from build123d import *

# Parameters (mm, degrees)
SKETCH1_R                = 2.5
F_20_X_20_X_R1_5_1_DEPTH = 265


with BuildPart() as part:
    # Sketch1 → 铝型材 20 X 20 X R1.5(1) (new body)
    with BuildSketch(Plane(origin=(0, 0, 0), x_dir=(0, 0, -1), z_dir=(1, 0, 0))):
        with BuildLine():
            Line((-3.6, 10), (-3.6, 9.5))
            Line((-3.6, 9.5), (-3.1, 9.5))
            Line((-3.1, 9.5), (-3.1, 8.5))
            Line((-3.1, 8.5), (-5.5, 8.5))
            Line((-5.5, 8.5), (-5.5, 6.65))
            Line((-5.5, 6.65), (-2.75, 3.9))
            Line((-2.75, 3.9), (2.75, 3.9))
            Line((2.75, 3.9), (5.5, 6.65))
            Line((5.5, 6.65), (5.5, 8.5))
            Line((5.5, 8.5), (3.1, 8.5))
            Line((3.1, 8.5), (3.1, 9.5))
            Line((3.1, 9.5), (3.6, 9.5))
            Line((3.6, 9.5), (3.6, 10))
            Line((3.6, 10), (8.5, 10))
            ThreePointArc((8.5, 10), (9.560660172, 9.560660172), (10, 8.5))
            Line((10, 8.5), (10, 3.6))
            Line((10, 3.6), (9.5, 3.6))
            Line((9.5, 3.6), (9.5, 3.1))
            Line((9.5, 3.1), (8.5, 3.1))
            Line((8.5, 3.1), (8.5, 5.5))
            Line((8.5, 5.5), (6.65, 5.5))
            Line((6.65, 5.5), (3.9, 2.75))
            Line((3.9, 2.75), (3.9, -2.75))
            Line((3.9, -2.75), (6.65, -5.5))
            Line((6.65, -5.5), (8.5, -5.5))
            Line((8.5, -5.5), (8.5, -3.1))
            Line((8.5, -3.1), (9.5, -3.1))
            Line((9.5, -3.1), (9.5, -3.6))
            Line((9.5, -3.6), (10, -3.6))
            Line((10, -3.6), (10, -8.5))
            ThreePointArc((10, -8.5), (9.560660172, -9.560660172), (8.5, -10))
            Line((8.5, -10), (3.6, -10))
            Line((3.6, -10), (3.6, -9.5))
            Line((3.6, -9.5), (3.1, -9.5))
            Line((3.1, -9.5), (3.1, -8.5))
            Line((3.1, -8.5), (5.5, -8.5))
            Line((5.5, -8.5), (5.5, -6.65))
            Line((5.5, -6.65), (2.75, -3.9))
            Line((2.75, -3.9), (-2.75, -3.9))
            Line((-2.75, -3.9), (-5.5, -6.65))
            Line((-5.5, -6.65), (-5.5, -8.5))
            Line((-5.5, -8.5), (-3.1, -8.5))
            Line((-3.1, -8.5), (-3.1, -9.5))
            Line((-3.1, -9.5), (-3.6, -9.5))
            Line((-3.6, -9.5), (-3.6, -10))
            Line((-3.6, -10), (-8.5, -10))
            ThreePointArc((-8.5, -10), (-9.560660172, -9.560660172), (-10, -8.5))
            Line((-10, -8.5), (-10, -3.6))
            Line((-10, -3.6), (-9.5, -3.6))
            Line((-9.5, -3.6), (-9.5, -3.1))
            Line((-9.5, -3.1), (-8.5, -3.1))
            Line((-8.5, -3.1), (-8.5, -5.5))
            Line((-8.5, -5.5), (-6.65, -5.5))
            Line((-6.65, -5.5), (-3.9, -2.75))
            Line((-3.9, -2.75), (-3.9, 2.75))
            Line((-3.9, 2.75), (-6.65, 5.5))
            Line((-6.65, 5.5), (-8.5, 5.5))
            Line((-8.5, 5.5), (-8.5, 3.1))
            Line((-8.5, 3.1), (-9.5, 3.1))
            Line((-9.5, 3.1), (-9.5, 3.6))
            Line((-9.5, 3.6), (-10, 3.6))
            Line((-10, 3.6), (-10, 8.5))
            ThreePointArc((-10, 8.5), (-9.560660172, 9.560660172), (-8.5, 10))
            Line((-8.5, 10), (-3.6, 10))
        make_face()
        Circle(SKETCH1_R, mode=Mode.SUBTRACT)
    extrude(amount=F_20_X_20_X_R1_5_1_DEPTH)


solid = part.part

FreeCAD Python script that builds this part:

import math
import FreeCAD as App
import Part
import Sketcher
from FreeCAD import Vector

doc = App.newDocument("Part")
params = doc.addObject("Spreadsheet::Sheet", "Params")
for row, (alias, value) in enumerate([
    ("sketch1_diameter", "5 mm"),
    ("sketch1_radius", "1.5 mm"),
    ("sketch1_width", "1 mm"),
    ("sketch1_width2", "4.9 mm"),
    ("sketch1_width3", "2.4 mm"),
    ("pad1_length", "265 mm"),
], start=1):
    params.set(f"A{row}", alias)
    params.set(f"B{row}", "=" + value)
    params.setAlias(f"B{row}", alias)

body = doc.addObject("PartDesign::Body", "Body")

sketch1 = body.newObject("Sketcher::SketchObject", "Sketch")
sketch1.AttachmentSupport = (doc.getObject("YZ_Plane"), [""])
sketch1.MapMode = "FlatFace"
sketch1.addGeometry([
    Part.LineSegment(Vector(9.5, 3.6, 0), Vector(10, 3.6, 0)),
    Part.LineSegment(Vector(10, 3.6, 0), Vector(10, 8.5, 0)),
    Part.ArcOfCircle(Part.Circle(Vector(8.5, 8.5, 0), Vector(0, 0, 1), 1.5), math.radians(0), math.radians(90)),
    Part.LineSegment(Vector(8.5, 10, 0), Vector(3.6, 10, 0)),
    Part.LineSegment(Vector(3.6, 10, 0), Vector(3.6, 9.5, 0)),
    Part.LineSegment(Vector(3.6, 9.5, 0), Vector(3.1, 9.5, 0)),
    Part.LineSegment(Vector(3.1, 9.5, 0), Vector(3.1, 8.5, 0)),
    Part.LineSegment(Vector(3.1, 8.5, 0), Vector(5.5, 8.5, 0)),
    Part.LineSegment(Vector(5.5, 8.5, 0), Vector(5.5, 6.7, 0)),
    Part.LineSegment(Vector(5.5, 6.7, 0), Vector(2.8, 3.9, 0)),
    Part.LineSegment(Vector(2.8, 3.9, 0), Vector(-2.8, 3.9, 0)),
    Part.LineSegment(Vector(-2.8, 3.9, 0), Vector(-5.5, 6.7, 0)),
    Part.LineSegment(Vector(-5.5, 6.7, 0), Vector(-5.5, 8.5, 0)),
    Part.LineSegment(Vector(-5.5, 8.5, 0), Vector(-3.1, 8.5, 0)),
    Part.LineSegment(Vector(-3.1, 8.5, 0), Vector(-3.1, 9.5, 0)),
    Part.LineSegment(Vector(-3.1, 9.5, 0), Vector(-3.6, 9.5, 0)),
    Part.LineSegment(Vector(-3.6, 9.5, 0), Vector(-3.6, 10, 0)),
    Part.LineSegment(Vector(-3.6, 10, 0), Vector(-8.5, 10, 0)),
    Part.ArcOfCircle(Part.Circle(Vector(-8.5, 8.5, 0), Vector(0, 0, 1), 1.5), math.radians(90), math.radians(180)),
    Part.LineSegment(Vector(-10, 8.5, 0), Vector(-10, 3.6, 0)),
    Part.LineSegment(Vector(-10, 3.6, 0), Vector(-9.5, 3.6, 0)),
    Part.LineSegment(Vector(-9.5, 3.6, 0), Vector(-9.5, 3.1, 0)),
    Part.LineSegment(Vector(-9.5, 3.1, 0), Vector(-8.5, 3.1, 0)),
    Part.LineSegment(Vector(-8.5, 3.1, 0), Vector(-8.5, 5.5, 0)),
    Part.LineSegment(Vector(-8.5, 5.5, 0), Vector(-6.7, 5.5, 0)),
    Part.LineSegment(Vector(-6.7, 5.5, 0), Vector(-3.9, 2.8, 0)),
    Part.LineSegment(Vector(-3.9, 2.8, 0), Vector(-3.9, -2.8, 0)),
    Part.LineSegment(Vector(-3.9, -2.8, 0), Vector(-6.7, -5.5, 0)),
    Part.LineSegment(Vector(-6.7, -5.5, 0), Vector(-8.5, -5.5, 0)),
    Part.LineSegment(Vector(-8.5, -5.5, 0), Vector(-8.5, -3.1, 0)),
    Part.LineSegment(Vector(-8.5, -3.1, 0), Vector(-9.5, -3.1, 0)),
    Part.LineSegment(Vector(-9.5, -3.1, 0), Vector(-9.5, -3.6, 0)),
    Part.LineSegment(Vector(-9.5, -3.6, 0), Vector(-10, -3.6, 0)),
    Part.LineSegment(Vector(-10, -3.6, 0), Vector(-10, -8.5, 0)),
    Part.ArcOfCircle(Part.Circle(Vector(-8.5, -8.5, 0), Vector(0, 0, 1), 1.5), math.radians(180), math.radians(270)),
    Part.LineSegment(Vector(-8.5, -10, 0), Vector(-3.6, -10, 0)),
    Part.LineSegment(Vector(-3.6, -10, 0), Vector(-3.6, -9.5, 0)),
    Part.LineSegment(Vector(-3.6, -9.5, 0), Vector(-3.1, -9.5, 0)),
    Part.LineSegment(Vector(-3.1, -9.5, 0), Vector(-3.1, -8.5, 0)),
    Part.LineSegment(Vector(-3.1, -8.5, 0), Vector(-5.5, -8.5, 0)),
    Part.LineSegment(Vector(-5.5, -8.5, 0), Vector(-5.5, -6.7, 0)),
    Part.LineSegment(Vector(-5.5, -6.7, 0), Vector(-2.8, -3.9, 0)),
    Part.LineSegment(Vector(-2.8, -3.9, 0), Vector(2.8, -3.9, 0)),
    Part.LineSegment(Vector(2.8, -3.9, 0), Vector(5.5, -6.7, 0)),
    Part.LineSegment(Vector(5.5, -6.7, 0), Vector(5.5, -8.5, 0)),
    Part.LineSegment(Vector(5.5, -8.5, 0), Vector(3.1, -8.5, 0)),
    Part.LineSegment(Vector(3.1, -8.5, 0), Vector(3.1, -9.5, 0)),
    Part.LineSegment(Vector(3.1, -9.5, 0), Vector(3.6, -9.5, 0)),
    Part.LineSegment(Vector(3.6, -9.5, 0), Vector(3.6, -10, 0)),
    Part.LineSegment(Vector(3.6, -10, 0), Vector(8.5, -10, 0)),
    Part.ArcOfCircle(Part.Circle(Vector(8.5, -8.5, 0), Vector(0, 0, 1), 1.5), math.radians(-90), math.radians(0)),
    Part.LineSegment(Vector(10, -8.5, 0), Vector(10, -3.6, 0)),
    Part.LineSegment(Vector(10, -3.6, 0), Vector(9.5, -3.6, 0)),
    Part.LineSegment(Vector(9.5, -3.6, 0), Vector(9.5, -3.1, 0)),
    Part.LineSegment(Vector(9.5, -3.1, 0), Vector(8.5, -3.1, 0)),
    Part.LineSegment(Vector(8.5, -3.1, 0), Vector(8.5, -5.5, 0)),
    Part.LineSegment(Vector(8.5, -5.5, 0), Vector(6.7, -5.5, 0)),
    Part.LineSegment(Vector(6.7, -5.5, 0), Vector(3.9, -2.8, 0)),
    Part.LineSegment(Vector(3.9, -2.8, 0), Vector(3.9, 2.8, 0)),
    Part.LineSegment(Vector(3.9, 2.8, 0), Vector(6.7, 5.5, 0)),
    Part.LineSegment(Vector(6.7, 5.5, 0), Vector(8.5, 5.5, 0)),
    Part.LineSegment(Vector(8.5, 5.5, 0), Vector(8.5, 3.1, 0)),
    Part.LineSegment(Vector(8.5, 3.1, 0), Vector(9.5, 3.1, 0)),
    Part.LineSegment(Vector(9.5, 3.1, 0), Vector(9.5, 3.6, 0)),
    Part.Circle(Vector(0, 0, 0), Vector(0, 0, 1), 2.5),
], False)
sketch1.addConstraint([
    Sketcher.Constraint("Coincident", 0, 2, 1, 1),
    Sketcher.Constraint("Tangent", 1, 2, 2, 1),
    Sketcher.Constraint("Tangent", 2, 2, 3, 1),
    Sketcher.Constraint("Coincident", 3, 2, 4, 1),
    Sketcher.Constraint("Coincident", 4, 2, 5, 1),
    Sketcher.Constraint("Coincident", 5, 2, 6, 1),
    Sketcher.Constraint("Coincident", 6, 2, 7, 1),
    Sketcher.Constraint("Coincident", 7, 2, 8, 1),
    Sketcher.Constraint("Coincident", 8, 2, 9, 1),
    Sketcher.Constraint("Coincident", 9, 2, 10, 1),
    Sketcher.Constraint("Coincident", 10, 2, 11, 1),
    Sketcher.Constraint("Coincident", 11, 2, 12, 1),
    Sketcher.Constraint("Coincident", 12, 2, 13, 1),
    Sketcher.Constraint("Coincident", 13, 2, 14, 1),
    Sketcher.Constraint("Coincident", 14, 2, 15, 1),
    Sketcher.Constraint("Coincident", 15, 2, 16, 1),
    Sketcher.Constraint("Coincident", 16, 2, 17, 1),
    Sketcher.Constraint("Tangent", 17, 2, 18, 1),
    Sketcher.Constraint("Tangent", 18, 2, 19, 1),
    Sketcher.Constraint("Coincident", 19, 2, 20, 1),
    Sketcher.Constraint("Coincident", 20, 2, 21, 1),
    Sketcher.Constraint("Coincident", 21, 2, 22, 1),
    Sketcher.Constraint("Coincident", 22, 2, 23, 1),
    Sketcher.Constraint("Coincident", 23, 2, 24, 1),
    Sketcher.Constraint("Coincident", 24, 2, 25, 1),
    Sketcher.Constraint("Coincident", 25, 2, 26, 1),
    Sketcher.Constraint("Coincident", 26, 2, 27, 1),
    Sketcher.Constraint("Coincident", 27, 2, 28, 1),
    Sketcher.Constraint("Coincident", 28, 2, 29, 1),
    Sketcher.Constraint("Coincident", 29, 2, 30, 1),
    Sketcher.Constraint("Coincident", 30, 2, 31, 1),
    Sketcher.Constraint("Coincident", 31, 2, 32, 1),
    Sketcher.Constraint("Coincident", 32, 2, 33, 1),
    Sketcher.Constraint("Tangent", 33, 2, 34, 1),
    Sketcher.Constraint("Tangent", 34, 2, 35, 1),
    Sketcher.Constraint("Coincident", 35, 2, 36, 1),
    Sketcher.Constraint("Coincident", 36, 2, 37, 1),
    Sketcher.Constraint("Coincident", 37, 2, 38, 1),
    Sketcher.Constraint("Coincident", 38, 2, 39, 1),
    Sketcher.Constraint("Coincident", 39, 2, 40, 1),
    Sketcher.Constraint("Coincident", 40, 2, 41, 1),
    Sketcher.Constraint("Coincident", 41, 2, 42, 1),
    Sketcher.Constraint("Coincident", 42, 2, 43, 1),
    Sketcher.Constraint("Coincident", 43, 2, 44, 1),
    Sketcher.Constraint("Coincident", 44, 2, 45, 1),
    Sketcher.Constraint("Coincident", 45, 2, 46, 1),
    Sketcher.Constraint("Coincident", 46, 2, 47, 1),
    Sketcher.Constraint("Coincident", 47, 2, 48, 1),
    Sketcher.Constraint("Coincident", 48, 2, 49, 1),
    Sketcher.Constraint("Tangent", 49, 2, 50, 1),
    Sketcher.Constraint("Tangent", 50, 2, 51, 1),
    Sketcher.Constraint("Coincident", 51, 2, 52, 1),
    Sketcher.Constraint("Coincident", 52, 2, 53, 1),
    Sketcher.Constraint("Coincident", 53, 2, 54, 1),
    Sketcher.Constraint("Coincident", 54, 2, 55, 1),
    Sketcher.Constraint("Coincident", 55, 2, 56, 1),
    Sketcher.Constraint("Coincident", 56, 2, 57, 1),
    Sketcher.Constraint("Coincident", 57, 2, 58, 1),
    Sketcher.Constraint("Coincident", 58, 2, 59, 1),
    Sketcher.Constraint("Coincident", 59, 2, 60, 1),
    Sketcher.Constraint("Coincident", 60, 2, 61, 1),
    Sketcher.Constraint("Coincident", 61, 2, 62, 1),
    Sketcher.Constraint("Coincident", 62, 2, 63, 1),
    Sketcher.Constraint("Coincident", 63, 2, 0, 1),
    Sketcher.Constraint("Horizontal", 0),
    Sketcher.Constraint("Vertical", 1),
    Sketcher.Constraint("Horizontal", 3),
    Sketcher.Constraint("Vertical", 4),
    Sketcher.Constraint("Horizontal", 5),
    Sketcher.Constraint("Vertical", 6),
    Sketcher.Constraint("Horizontal", 7),
    Sketcher.Constraint("Vertical", 8),
    Sketcher.Constraint("Horizontal", 10),
    Sketcher.Constraint("Vertical", 12),
    Sketcher.Constraint("Horizontal", 13),
    Sketcher.Constraint("Vertical", 14),
    Sketcher.Constraint("Horizontal", 15),
    Sketcher.Constraint("Vertical", 16),
    Sketcher.Constraint("Horizontal", 17),
    Sketcher.Constraint("Vertical", 19),
    Sketcher.Constraint("Horizontal", 20),
    Sketcher.Constraint("Vertical", 21),
    Sketcher.Constraint("Horizontal", 22),
    Sketcher.Constraint("Vertical", 23),
    Sketcher.Constraint("Horizontal", 24),
    Sketcher.Constraint("Vertical", 26),
    Sketcher.Constraint("Horizontal", 28),
    Sketcher.Constraint("Vertical", 29),
    Sketcher.Constraint("Horizontal", 30),
    Sketcher.Constraint("Vertical", 31),
    Sketcher.Constraint("Horizontal", 32),
    Sketcher.Constraint("Vertical", 33),
    Sketcher.Constraint("Horizontal", 35),
    Sketcher.Constraint("Vertical", 36),
    Sketcher.Constraint("Horizontal", 37),
    Sketcher.Constraint("Vertical", 38),
    Sketcher.Constraint("Horizontal", 39),
    Sketcher.Constraint("Vertical", 40),
    Sketcher.Constraint("Horizontal", 42),
    Sketcher.Constraint("Vertical", 44),
    Sketcher.Constraint("Horizontal", 45),
    Sketcher.Constraint("Vertical", 46),
    Sketcher.Constraint("Horizontal", 47),
    Sketcher.Constraint("Vertical", 48),
    Sketcher.Constraint("Horizontal", 49),
    Sketcher.Constraint("Vertical", 51),
    Sketcher.Constraint("Horizontal", 52),
    Sketcher.Constraint("Vertical", 53),
    Sketcher.Constraint("Horizontal", 54),
    Sketcher.Constraint("Vertical", 55),
    Sketcher.Constraint("Horizontal", 56),
    Sketcher.Constraint("Vertical", 58),
    Sketcher.Constraint("Horizontal", 60),
    Sketcher.Constraint("Vertical", 61),
    Sketcher.Constraint("Horizontal", 62),
    Sketcher.Constraint("Vertical", 63),
    Sketcher.Constraint("Coincident", 64, 3, -1, 1),
    Sketcher.Constraint("Equal", 2, 18),
    Sketcher.Constraint("Equal", 18, 34),
    Sketcher.Constraint("Equal", 34, 50),
    Sketcher.Constraint("Symmetric", 2, 3, 34, 3, -1, 1),
    Sketcher.Constraint("Symmetric", 18, 3, 50, 3, -1, 1),
    Sketcher.Constraint("Symmetric", 4, 2, 36, 2, -1, 1),
    Sketcher.Constraint("Symmetric", 6, 2, 38, 2, -1, 1),
    Sketcher.Constraint("Symmetric", 8, 2, 40, 2, -1, 1),
    Sketcher.Constraint("Symmetric", 9, 2, 41, 2, -1, 1),
    Sketcher.Constraint("Symmetric", 11, 2, 43, 2, -1, 1),
    Sketcher.Constraint("Symmetric", 13, 2, 45, 2, -1, 1),
    Sketcher.Constraint("Symmetric", 15, 2, 47, 2, -1, 1),
    Sketcher.Constraint("Symmetric", 20, 2, 52, 2, -1, 1),
    Sketcher.Constraint("Symmetric", 22, 2, 54, 2, -1, 1),
    Sketcher.Constraint("Symmetric", 24, 2, 56, 2, -1, 1),
    Sketcher.Constraint("Symmetric", 25, 2, 57, 2, -1, 1),
    Sketcher.Constraint("Symmetric", 27, 2, 59, 2, -1, 1),
    Sketcher.Constraint("Symmetric", 29, 2, 61, 2, -1, 1),
    Sketcher.Constraint("Symmetric", 31, 2, 63, 2, -1, 1),
    Sketcher.Constraint("Symmetric", 2, 3, 18, 3, -2),
    Sketcher.Constraint("Symmetric", 8, 2, 11, 2, -2),
    Sketcher.Constraint("Symmetric", 6, 2, 13, 2, -2),
    Sketcher.Constraint("Symmetric", 4, 2, 15, 2, -2),
    Sketcher.Constraint("Symmetric", 31, 2, 52, 2, -2),
    Sketcher.Constraint("Symmetric", 29, 2, 54, 2, -2),
    Sketcher.Constraint("Symmetric", 27, 2, 56, 2, -2),
    Sketcher.Constraint("Perpendicular", 9, 11),
    Sketcher.Constraint("Parallel", 11, 25),
    Sketcher.Constraint("Perpendicular", 25, 27),
    Sketcher.Constraint("Perpendicular", 41, 43),
    Sketcher.Constraint("Perpendicular", 57, 59),
    Sketcher.Constraint("Horizontal", 1, 2, 6, 2),
    Sketcher.Constraint("Horizontal", 26, 2, 57, 2),
    Sketcher.Constraint("Vertical", 17, 2, 22, 2),
    Sketcher.Constraint("Equal", 0, 5),
    Sketcher.Constraint("Equal", 49, 1),
    Sketcher.Constraint("Equal", 52, 4),
    Sketcher.Constraint("Equal", 60, 8),
    Sketcher.Constraint("Equal", 16, 21),
    Sketcher.Constraint("Equal", 45, 23),
    Sketcher.Constraint("Equal", 42, 26),
    Sketcher.Constraint("Equal", 11, 25),
    Sketcher.Constraint("Diameter", 64, 5.0),
    Sketcher.Constraint("Radius", 2, 1.5),
    Sketcher.Constraint("DistanceX", 22, 1, 22, 2, 1.0),
    Sketcher.Constraint("DistanceX", 3, 2, 3, 1, 4.9),
    Sketcher.Constraint("DistanceX", 7, 1, 7, 2, 2.4),
    Sketcher.Constraint("DistanceX", 10, 2, 10, 1, 5.5),
    Sketcher.Constraint("DistanceX", -1, 1, 0, 2, 10.0),
    Sketcher.Constraint("DistanceX", 24, 1, 24, 2, 1.85),
])
sketch1.setExpression("Constraints[159]", "Params.sketch1_diameter")
sketch1.setExpression("Constraints[160]", "Params.sketch1_radius")
sketch1.setExpression("Constraints[161]", "Params.sketch1_width")
sketch1.setExpression("Constraints[162]", "Params.sketch1_width2")
sketch1.setExpression("Constraints[163]", "Params.sketch1_width3")
pad1 = body.newObject("PartDesign::Pad", "Pad")
pad1.Profile = sketch1
pad1.setExpression("Length", "Params.pad1_length")

doc.recompute()
